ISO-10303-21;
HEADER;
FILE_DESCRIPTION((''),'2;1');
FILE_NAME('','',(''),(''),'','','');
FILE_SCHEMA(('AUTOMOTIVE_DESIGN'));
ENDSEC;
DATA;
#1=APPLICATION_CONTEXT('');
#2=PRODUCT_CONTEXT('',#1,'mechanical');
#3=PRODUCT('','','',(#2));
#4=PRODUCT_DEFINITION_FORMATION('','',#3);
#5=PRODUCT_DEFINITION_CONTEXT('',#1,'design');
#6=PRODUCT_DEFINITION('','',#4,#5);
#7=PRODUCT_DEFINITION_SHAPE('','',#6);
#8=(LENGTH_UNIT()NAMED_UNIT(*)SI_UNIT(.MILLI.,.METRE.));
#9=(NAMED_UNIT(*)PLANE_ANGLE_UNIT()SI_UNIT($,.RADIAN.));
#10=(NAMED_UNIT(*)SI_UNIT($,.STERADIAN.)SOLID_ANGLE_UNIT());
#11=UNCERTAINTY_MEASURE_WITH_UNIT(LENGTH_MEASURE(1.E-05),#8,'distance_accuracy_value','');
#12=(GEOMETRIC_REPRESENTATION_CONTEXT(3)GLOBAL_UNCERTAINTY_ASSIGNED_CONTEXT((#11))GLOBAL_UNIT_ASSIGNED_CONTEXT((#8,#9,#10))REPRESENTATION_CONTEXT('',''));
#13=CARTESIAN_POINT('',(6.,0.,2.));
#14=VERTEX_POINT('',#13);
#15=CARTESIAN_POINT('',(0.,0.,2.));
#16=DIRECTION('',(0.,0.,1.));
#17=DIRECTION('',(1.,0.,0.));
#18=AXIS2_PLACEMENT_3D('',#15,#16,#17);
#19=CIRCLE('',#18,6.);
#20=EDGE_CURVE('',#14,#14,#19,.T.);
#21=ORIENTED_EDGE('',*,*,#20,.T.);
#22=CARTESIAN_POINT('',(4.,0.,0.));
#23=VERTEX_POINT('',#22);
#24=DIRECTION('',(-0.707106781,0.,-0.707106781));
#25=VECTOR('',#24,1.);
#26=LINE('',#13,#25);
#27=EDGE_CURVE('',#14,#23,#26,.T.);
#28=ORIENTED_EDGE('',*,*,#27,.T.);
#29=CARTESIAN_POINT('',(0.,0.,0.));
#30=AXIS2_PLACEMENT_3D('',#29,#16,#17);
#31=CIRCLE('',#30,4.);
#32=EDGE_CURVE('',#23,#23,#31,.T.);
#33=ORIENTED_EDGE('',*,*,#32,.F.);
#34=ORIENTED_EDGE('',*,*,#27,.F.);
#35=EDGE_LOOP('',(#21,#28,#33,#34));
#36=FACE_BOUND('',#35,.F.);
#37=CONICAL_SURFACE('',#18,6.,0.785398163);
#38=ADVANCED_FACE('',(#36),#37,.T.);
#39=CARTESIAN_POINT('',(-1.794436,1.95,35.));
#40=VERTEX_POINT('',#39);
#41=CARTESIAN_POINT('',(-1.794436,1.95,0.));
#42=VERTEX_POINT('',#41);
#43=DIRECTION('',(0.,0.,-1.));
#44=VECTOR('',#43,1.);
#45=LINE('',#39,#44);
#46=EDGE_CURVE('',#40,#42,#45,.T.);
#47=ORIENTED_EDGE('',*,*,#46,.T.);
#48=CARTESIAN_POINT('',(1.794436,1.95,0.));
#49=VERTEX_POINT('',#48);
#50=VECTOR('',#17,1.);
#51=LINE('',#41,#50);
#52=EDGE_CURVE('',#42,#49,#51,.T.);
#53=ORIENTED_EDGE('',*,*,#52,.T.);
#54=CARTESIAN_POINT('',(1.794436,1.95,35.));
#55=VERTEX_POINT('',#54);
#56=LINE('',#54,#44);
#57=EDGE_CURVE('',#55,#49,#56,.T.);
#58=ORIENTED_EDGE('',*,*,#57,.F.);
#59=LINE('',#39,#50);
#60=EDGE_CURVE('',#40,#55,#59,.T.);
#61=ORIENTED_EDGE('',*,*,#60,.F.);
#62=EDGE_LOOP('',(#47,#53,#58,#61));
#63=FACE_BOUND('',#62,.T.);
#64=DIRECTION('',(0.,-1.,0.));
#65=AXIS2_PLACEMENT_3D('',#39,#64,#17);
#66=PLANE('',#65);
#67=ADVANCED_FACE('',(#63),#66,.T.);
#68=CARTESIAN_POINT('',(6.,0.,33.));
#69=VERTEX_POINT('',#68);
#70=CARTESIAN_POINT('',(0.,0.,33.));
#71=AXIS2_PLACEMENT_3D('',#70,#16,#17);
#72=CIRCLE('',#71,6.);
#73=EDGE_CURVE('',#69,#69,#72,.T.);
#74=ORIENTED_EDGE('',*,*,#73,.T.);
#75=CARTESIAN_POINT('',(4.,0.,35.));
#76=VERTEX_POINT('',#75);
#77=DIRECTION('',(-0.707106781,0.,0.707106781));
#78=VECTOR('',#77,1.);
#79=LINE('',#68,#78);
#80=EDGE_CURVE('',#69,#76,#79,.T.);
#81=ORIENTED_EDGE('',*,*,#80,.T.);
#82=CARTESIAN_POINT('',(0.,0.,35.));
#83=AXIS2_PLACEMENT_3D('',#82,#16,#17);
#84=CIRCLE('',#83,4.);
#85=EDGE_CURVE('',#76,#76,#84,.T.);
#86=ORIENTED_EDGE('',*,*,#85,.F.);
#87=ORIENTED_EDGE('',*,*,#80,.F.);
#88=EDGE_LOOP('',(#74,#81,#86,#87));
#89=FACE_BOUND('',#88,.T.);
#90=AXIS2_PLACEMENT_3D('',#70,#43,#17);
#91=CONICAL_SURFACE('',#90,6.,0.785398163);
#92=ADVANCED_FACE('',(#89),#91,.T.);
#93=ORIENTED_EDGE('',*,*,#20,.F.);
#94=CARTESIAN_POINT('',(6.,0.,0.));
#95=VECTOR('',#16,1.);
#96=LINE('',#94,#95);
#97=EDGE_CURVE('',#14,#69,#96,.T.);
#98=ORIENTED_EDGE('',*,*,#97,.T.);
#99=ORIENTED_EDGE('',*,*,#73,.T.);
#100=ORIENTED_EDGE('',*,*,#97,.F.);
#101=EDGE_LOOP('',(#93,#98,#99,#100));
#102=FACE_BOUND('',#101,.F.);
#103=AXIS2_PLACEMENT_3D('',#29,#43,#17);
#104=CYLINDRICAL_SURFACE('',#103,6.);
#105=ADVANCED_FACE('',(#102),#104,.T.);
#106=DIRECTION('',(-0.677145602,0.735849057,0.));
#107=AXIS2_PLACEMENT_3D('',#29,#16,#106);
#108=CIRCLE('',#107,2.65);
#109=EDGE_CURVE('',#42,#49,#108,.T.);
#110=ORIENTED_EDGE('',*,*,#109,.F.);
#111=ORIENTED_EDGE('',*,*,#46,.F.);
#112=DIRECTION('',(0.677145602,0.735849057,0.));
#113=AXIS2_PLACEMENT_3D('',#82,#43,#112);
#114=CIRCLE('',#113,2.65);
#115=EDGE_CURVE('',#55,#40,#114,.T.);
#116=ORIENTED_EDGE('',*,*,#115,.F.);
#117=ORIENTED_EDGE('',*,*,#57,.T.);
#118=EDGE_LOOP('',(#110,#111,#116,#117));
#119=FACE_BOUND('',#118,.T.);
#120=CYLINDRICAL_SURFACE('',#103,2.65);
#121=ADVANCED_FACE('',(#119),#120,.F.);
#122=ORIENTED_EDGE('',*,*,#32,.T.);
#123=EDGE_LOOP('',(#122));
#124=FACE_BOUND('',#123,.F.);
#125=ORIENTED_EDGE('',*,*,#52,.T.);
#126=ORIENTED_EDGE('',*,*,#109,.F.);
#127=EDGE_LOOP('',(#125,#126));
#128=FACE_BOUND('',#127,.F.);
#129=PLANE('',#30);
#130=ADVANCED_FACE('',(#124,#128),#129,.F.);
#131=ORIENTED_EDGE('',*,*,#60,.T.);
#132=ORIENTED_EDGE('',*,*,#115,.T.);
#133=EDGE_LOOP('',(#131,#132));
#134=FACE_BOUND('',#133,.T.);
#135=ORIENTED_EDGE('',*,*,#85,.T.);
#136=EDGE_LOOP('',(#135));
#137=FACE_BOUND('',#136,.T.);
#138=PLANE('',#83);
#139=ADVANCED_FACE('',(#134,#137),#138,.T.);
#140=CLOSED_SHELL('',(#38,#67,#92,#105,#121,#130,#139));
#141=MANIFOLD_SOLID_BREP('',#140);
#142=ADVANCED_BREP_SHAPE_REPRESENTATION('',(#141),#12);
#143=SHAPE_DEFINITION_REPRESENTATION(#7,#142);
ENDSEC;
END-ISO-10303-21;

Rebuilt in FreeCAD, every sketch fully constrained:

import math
import FreeCAD as App
import Part
import Sketcher
from FreeCAD import Vector
Q = App.Units.Quantity


def edges_at(feature, points):
    """Names of the edges that pass closest to the given points."""
    edges = feature.Shape.Edges
    near = lambda p: min(range(len(edges)), key=lambda i: edges[i].distToShape(Part.Vertex(*p))[0])
    return sorted({f"Edge{near(p) + 1}" for p in points})

doc = App.newDocument("Part")
body = doc.addObject("PartDesign::Body", "Body")

# Sketch on XY plane
sketch1 = doc.addObject("Sketcher::SketchObject", "Sketch")
body.addObject(sketch1)
sketch1.AttachmentSupport = (doc.XY_Plane, [""])
sketch1.MapMode = "FlatFace"
sketch1.addGeometry([
    Part.Circle(Vector(0, 0, 0), Vector(0, 0, 1), 6),
    Part.Circle(Vector(0, 0, 0), Vector(0, 0, 1), 2.6),
], False)
sketch1.addConstraint([
    Sketcher.Constraint("Coincident", 0, 3, -1, 1),
    Sketcher.Constraint("Coincident", 1, 3, -1, 1),
    Sketcher.Constraint("Diameter", 0, Q("12 mm")),
    Sketcher.Constraint("Diameter", 1, Q("5.3 mm")),
])
pad1 = doc.addObject("PartDesign::Pad", "Pad")
body.addObject(pad1)
pad1.Profile = sketch1
pad1.Length = 35

# Sketch on XY plane
sketch2 = doc.addObject("Sketcher::SketchObject", "Sketch001")
body.addObject(sketch2)
sketch2.AttachmentSupport = (doc.XY_Plane, [""])
sketch2.MapMode = "FlatFace"
sketch2.AttachmentOffset = App.Placement(Vector(0, 0, 35), App.Rotation())
sketch2.addGeometry([
    Part.ArcOfCircle(Part.Circle(Vector(0, 0, 0), Vector(0, 0, 1), 2.6), math.radians(47), math.radians(133)),
    Part.LineSegment(Vector(-1.8, 1.9, 0), Vector(1.8, 1.9, 0)),
], False)
sketch2.addConstraint([
    Sketcher.Constraint("Coincident", 0, 1, 1, 2),
    Sketcher.Constraint("Coincident", 1, 1, 0, 2),
    Sketcher.Constraint("Horizontal", 1),
    Sketcher.Constraint("Coincident", 0, 3, -1, 1),
    Sketcher.Constraint("Radius", 0, Q("2.65 mm")),
    Sketcher.Constraint("DistanceY", -1, 1, 0, 1, Q("1.95 mm")),
])
pad2 = doc.addObject("PartDesign::Pad", "Pad001")
body.addObject(pad2)
pad2.Profile = sketch2
pad2.Length = 35
pad2.Reversed = True
doc.recompute()

chamfer = doc.addObject("PartDesign::Chamfer", "Chamfer")
body.addObject(chamfer)
chamfer.Base = (pad2, edges_at(pad2, [(-6, 0, 0), (-6, 0, 35)]))
chamfer.Size = 2

doc.recompute()
